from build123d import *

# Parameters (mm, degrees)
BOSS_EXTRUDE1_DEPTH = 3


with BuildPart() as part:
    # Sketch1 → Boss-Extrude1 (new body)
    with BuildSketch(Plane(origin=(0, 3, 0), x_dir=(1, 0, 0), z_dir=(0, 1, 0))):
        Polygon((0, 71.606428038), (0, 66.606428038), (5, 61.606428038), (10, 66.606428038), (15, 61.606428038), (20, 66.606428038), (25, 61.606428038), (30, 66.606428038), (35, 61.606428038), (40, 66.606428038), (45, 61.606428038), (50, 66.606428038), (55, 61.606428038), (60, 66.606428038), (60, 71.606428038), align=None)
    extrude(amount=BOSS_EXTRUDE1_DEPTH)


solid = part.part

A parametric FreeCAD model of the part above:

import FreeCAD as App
import Part
import Sketcher
from FreeCAD import Vector
Q = App.Units.Quantity

doc = App.newDocument("Part")
body = doc.addObject("PartDesign::Body", "Body")

# Sketch on XZ plane
sketch1 = body.newObject("Sketcher::SketchObject", "Sketch")
sketch1.AttachmentSupport = (doc.getObject("XZ_Plane"), [""])
sketch1.MapMode = "FlatFace"
sketch1.AttachmentOffset = App.Placement(Vector(0, 0, -3), App.Rotation())
sketch1.addGeometry([
    Part.LineSegment(Vector(0, -72, 0), Vector(0, -67, 0)),  # 0
    Part.LineSegment(Vector(0, -67, 0), Vector(5, -62, 0)),  # 1
    Part.LineSegment(Vector(5, -62, 0), Vector(10, -67, 0)),  # 2
    Part.LineSegment(Vector(10, -67, 0), Vector(15, -62, 0)),  # 3
    Part.LineSegment(Vector(15, -62, 0), Vector(20, -67, 0)),  # 4
    Part.LineSegment(Vector(20, -67, 0), Vector(25, -62, 0)),  # 5
    Part.LineSegment(Vector(25, -62, 0), Vector(30, -67, 0)),  # 6
    Part.LineSegment(Vector(30, -67, 0), Vector(35, -62, 0)),  # 7
    Part.LineSegment(Vector(35, -62, 0), Vector(40, -67, 0)),  # 8
    Part.LineSegment(Vector(40, -67, 0), Vector(45, -62, 0)),  # 9
    Part.LineSegment(Vector(45, -62, 0), Vector(50, -67, 0)),  # 10
    Part.LineSegment(Vector(50, -67, 0), Vector(55, -62, 0)),  # 11
    Part.LineSegment(Vector(55, -62, 0), Vector(60, -67, 0)),  # 12
    Part.LineSegment(Vector(60, -67, 0), Vector(60, -72, 0)),  # 13
    Part.LineSegment(Vector(60, -72, 0), Vector(0, -72, 0)),  # 14
], False)
sketch1.addConstraint([
    Sketcher.Constraint("Coincident", 0, 2, 1, 1),
    Sketcher.Constraint("Coincident", 1, 2, 2, 1),
    Sketcher.Constraint("Coincident", 2, 2, 3, 1),
    Sketcher.Constraint("Coincident", 3, 2, 4, 1),
    Sketcher.Constraint("Coincident", 4, 2, 5, 1),
    Sketcher.Constraint("Coincident", 5, 2, 6, 1),
    Sketcher.Constraint("Coincident", 6, 2, 7, 1),
    Sketcher.Constraint("Coincident", 7, 2, 8, 1),
    Sketcher.Constraint("Coincident", 8, 2, 9, 1),
    Sketcher.Constraint("Coincident", 9, 2, 10, 1),
    Sketcher.Constraint("Coincident", 10, 2, 11, 1),
    Sketcher.Constraint("Coincident", 11, 2, 12, 1),
    Sketcher.Constraint("Coincident", 12, 2, 13, 1),
    Sketcher.Constraint("Coincident", 13, 2, 14, 1),
    Sketcher.Constraint("Coincident", 14, 2, 0, 1),
    Sketcher.Constraint("Vertical", 0),
    Sketcher.Constraint("Vertical", 13),
    Sketcher.Constraint("Horizontal", 14),
    Sketcher.Constraint("PointOnObject", 0, 2, -2),
    Sketcher.Constraint("Perpendicular", 1, 2),
    Sketcher.Constraint("Perpendicular", 2, 3),
    Sketcher.Constraint("Perpendicular", 3, 4),
    Sketcher.Constraint("Perpendicular", 4, 5),
    Sketcher.Constraint("Perpendicular", 5, 6),
    Sketcher.Constraint("Perpendicular", 6, 7),
    Sketcher.Constraint("Perpendicular", 7, 8),
    Sketcher.Constraint("Perpendicular", 8, 9),
    Sketcher.Constraint("Perpendicular", 9, 10),
    Sketcher.Constraint("Perpendicular", 10, 11),
    Sketcher.Constraint("Perpendicular", 11, 12),
    Sketcher.Constraint("Horizontal", 0, 2, 2, 2),
    Sketcher.Constraint("Horizontal", 1, 2, 3, 2),
    Sketcher.Constraint("Horizontal", 2, 2, 4, 2),
    Sketcher.Constraint("Horizontal", 3, 2, 5, 2),
    Sketcher.Constraint("Horizontal", 4, 2, 6, 2),
    Sketcher.Constraint("Horizontal", 5, 2, 7, 2),
    Sketcher.Constraint("Horizontal", 6, 2, 8, 2),
    Sketcher.Constraint("Horizontal", 7, 2, 9, 2),
    Sketcher.Constraint("Horizontal", 8, 2, 10, 2),
    Sketcher.Constraint("Horizontal", 9, 2, 11, 2),
    Sketcher.Constraint("Horizontal", 10, 2, 12, 2),
    Sketcher.Constraint("Equal", 1, 2),
    Sketcher.Constraint("DistanceX", 14, 2, 14, 1, Q("60 mm")),
    Sketcher.Constraint("DistanceY", 0, 1, 0, 2, Q("5 mm")),
    Sketcher.Constraint("DistanceY", 0, 2, -1, 1, Q("66.606428 mm")),
])
pad1 = body.newObject("PartDesign::Pad", "Pad")
pad1.Profile = sketch1
pad1.Length = 3
pad1.Reversed = True

doc.recompute()
